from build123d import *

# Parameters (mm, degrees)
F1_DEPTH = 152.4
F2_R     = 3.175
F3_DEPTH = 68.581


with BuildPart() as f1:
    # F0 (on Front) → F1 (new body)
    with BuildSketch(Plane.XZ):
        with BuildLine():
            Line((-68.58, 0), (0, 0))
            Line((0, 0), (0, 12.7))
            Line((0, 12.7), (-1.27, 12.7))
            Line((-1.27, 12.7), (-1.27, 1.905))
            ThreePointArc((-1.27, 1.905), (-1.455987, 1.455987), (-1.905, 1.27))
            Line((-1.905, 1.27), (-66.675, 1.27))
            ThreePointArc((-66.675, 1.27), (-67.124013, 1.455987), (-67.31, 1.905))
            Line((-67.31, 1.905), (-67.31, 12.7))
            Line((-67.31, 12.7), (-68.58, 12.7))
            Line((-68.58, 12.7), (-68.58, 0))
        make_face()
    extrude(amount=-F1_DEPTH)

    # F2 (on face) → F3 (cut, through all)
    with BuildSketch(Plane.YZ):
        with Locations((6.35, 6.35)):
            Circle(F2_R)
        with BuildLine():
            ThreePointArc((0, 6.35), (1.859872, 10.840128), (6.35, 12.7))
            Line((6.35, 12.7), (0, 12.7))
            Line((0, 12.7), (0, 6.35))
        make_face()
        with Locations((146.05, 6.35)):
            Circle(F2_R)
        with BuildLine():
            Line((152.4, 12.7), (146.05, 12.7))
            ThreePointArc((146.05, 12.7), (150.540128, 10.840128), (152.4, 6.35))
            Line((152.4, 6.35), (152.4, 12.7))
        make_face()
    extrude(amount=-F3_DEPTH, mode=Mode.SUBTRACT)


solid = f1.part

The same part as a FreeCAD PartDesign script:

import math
import FreeCAD as App
import Part
import Sketcher
from FreeCAD import Vector
Q = App.Units.Quantity

doc = App.newDocument("Part")
body = doc.addObject("PartDesign::Body", "Body")

# Sketch on XZ plane
sketch1 = body.newObject("Sketcher::SketchObject", "Sketch")
sketch1.AttachmentSupport = (doc.getObject("XZ_Plane"), [""])
sketch1.MapMode = "FlatFace"
sketch1.addGeometry([
    Part.LineSegment(Vector(-68.6, 0, 0), Vector(0, 0, 0)),  # 0
    Part.LineSegment(Vector(0, 0, 0), Vector(0, 12.7, 0)),  # 1
    Part.LineSegment(Vector(0, 12.7, 0), Vector(-1.3, 12.7, 0)),  # 2
    Part.LineSegment(Vector(-1.3, 12.7, 0), Vector(-1.3, 1.9, 0)),  # 3
    Part.ArcOfCircle(Part.Circle(Vector(-1.9, 1.9, 0), Vector(0, 0, 1), 0.6), math.radians(-90), math.radians(0)),  # 4
    Part.LineSegment(Vector(-1.9, 1.3, 0), Vector(-66.7, 1.3, 0)),  # 5
    Part.ArcOfCircle(Part.Circle(Vector(-66.7, 1.9, 0), Vector(0, 0, 1), 0.6), math.radians(180), math.radians(270)),  # 6
    Part.LineSegment(Vector(-67.3, 1.9, 0), Vector(-67.3, 12.7, 0)),  # 7
    Part.LineSegment(Vector(-67.3, 12.7, 0), Vector(-68.6, 12.7, 0)),  # 8
    Part.LineSegment(Vector(-68.6, 12.7, 0), Vector(-68.6, 0, 0)),  # 9
], False)
sketch1.addConstraint([
    Sketcher.Constraint("Coincident", 0, 2, 1, 1),
    Sketcher.Constraint("Coincident", 1, 2, 2, 1),
    Sketcher.Constraint("Coincident", 2, 2, 3, 1),
    Sketcher.Constraint("Tangent", 3, 2, 4, 2),
    Sketcher.Constraint("Tangent", 4, 1, 5, 1),
    Sketcher.Constraint("Tangent", 5, 2, 6, 2),
    Sketcher.Constraint("Tangent", 6, 1, 7, 1),
    Sketcher.Constraint("Coincident", 7, 2, 8, 1),
    Sketcher.Constraint("Coincident", 8, 2, 9, 1),
    Sketcher.Constraint("Coincident", 9, 2, 0, 1),
    Sketcher.Constraint("Horizontal", 0),
    Sketcher.Constraint("Vertical", 1),
    Sketcher.Constraint("Horizontal", 2),
    Sketcher.Constraint("Vertical", 3),
    Sketcher.Constraint("Horizontal", 5),
    Sketcher.Constraint("Vertical", 7),
    Sketcher.Constraint("Horizontal", 8),
    Sketcher.Constraint("Vertical", 9),
    Sketcher.Constraint("Coincident", 0, 2, -1, 1),
    Sketcher.Constraint("Equal", 4, 6),
    Sketcher.Constraint("Horizontal", 2, 2, 7, 2),
    Sketcher.Constraint("Equal", 2, 8),
    Sketcher.Constraint("DistanceX", 0, 1, 0, 2, Q("2.7 in")),
    Sketcher.Constraint("DistanceY", 1, 1, 1, 2, Q("0.5 in")),
    Sketcher.Constraint("Radius", 4, Q("0.025 in")),
    Sketcher.Constraint("DistanceX", 2, 2, 2, 1, Q("0.05 in")),
    Sketcher.Constraint("DistanceY", 3, 2, 3, 1, Q("0.425 in")),
])
pad1 = body.newObject("PartDesign::Pad", "Pad")
pad1.Profile = sketch1
pad1.Length = Q("6 in")
pad1.Reversed = True

# Sketch on YZ plane
sketch2 = body.newObject("Sketcher::SketchObject", "Sketch001")
sketch2.AttachmentSupport = (doc.getObject("YZ_Plane"), [""])
sketch2.MapMode = "FlatFace"
sketch2.addGeometry([
    Part.Circle(Vector(6.3, 6.3, 0), Vector(0, 0, 1), 3.2),  # 0
    Part.ArcOfCircle(Part.Circle(Vector(6.4, 6.3, 0), Vector(0, 0, 1), 6.4), math.radians(90), math.radians(180)),  # 1
    Part.LineSegment(Vector(6.3, 12.7, 0), Vector(0, 12.7, 0)),  # 2
    Part.LineSegment(Vector(0, 12.7, 0), Vector(0, 6.3, 0)),  # 3
    Part.Circle(Vector(146.1, 6.3, 0), Vector(0, 0, 1), 3.2),  # 4
    Part.LineSegment(Vector(152.4, 12.7, 0), Vector(146.1, 12.7, 0)),  # 5
    Part.ArcOfCircle(Part.Circle(Vector(146, 6.3, 0), Vector(0, 0, 1), 6.4), math.radians(0), math.radians(90)),  # 6
    Part.LineSegment(Vector(152.4, 6.3, 0), Vector(152.4, 12.7, 0)),  # 7
], False)
sketch2.addConstraint([
    Sketcher.Constraint("Tangent", 1, 1, 2, 1),
    Sketcher.Constraint("Coincident", 2, 2, 3, 1),
    Sketcher.Constraint("Tangent", 3, 2, 1, 2),
    Sketcher.Constraint("Tangent", 5, 2, 6, 2),
    Sketcher.Constraint("Tangent", 6, 1, 7, 1),
    Sketcher.Constraint("Coincident", 7, 2, 5, 1),
    Sketcher.Constraint("Horizontal", 2),
    Sketcher.Constraint("Vertical", 3),
    Sketcher.Constraint("Horizontal", 5),
    Sketcher.Constraint("Vertical", 7),
    Sketcher.Constraint("Coincident", 1, 3, 0, 3),
    Sketcher.Constraint("Coincident", 6, 3, 4, 3),
    Sketcher.Constraint("Equal", 0, 4),
    Sketcher.Constraint("Equal", 1, 6),
    Sketcher.Constraint("PointOnObject", 2, 2, -2),
    Sketcher.Constraint("Horizontal", 1, 3, 4, 3),
    Sketcher.Constraint("Diameter", 0, Q("0.25 in")),
    Sketcher.Constraint("Radius", 1, Q("0.25 in")),
    Sketcher.Constraint("DistanceX", -1, 1, 6, 1, Q("6 in")),
    Sketcher.Constraint("DistanceY", -1, 1, 1, 1, Q("0.5 in")),
])
pocket1 = body.newObject("PartDesign::Pocket", "Pocket")
pocket1.Profile = sketch2
pocket1.Type = "ThroughAll"

doc.recompute()
